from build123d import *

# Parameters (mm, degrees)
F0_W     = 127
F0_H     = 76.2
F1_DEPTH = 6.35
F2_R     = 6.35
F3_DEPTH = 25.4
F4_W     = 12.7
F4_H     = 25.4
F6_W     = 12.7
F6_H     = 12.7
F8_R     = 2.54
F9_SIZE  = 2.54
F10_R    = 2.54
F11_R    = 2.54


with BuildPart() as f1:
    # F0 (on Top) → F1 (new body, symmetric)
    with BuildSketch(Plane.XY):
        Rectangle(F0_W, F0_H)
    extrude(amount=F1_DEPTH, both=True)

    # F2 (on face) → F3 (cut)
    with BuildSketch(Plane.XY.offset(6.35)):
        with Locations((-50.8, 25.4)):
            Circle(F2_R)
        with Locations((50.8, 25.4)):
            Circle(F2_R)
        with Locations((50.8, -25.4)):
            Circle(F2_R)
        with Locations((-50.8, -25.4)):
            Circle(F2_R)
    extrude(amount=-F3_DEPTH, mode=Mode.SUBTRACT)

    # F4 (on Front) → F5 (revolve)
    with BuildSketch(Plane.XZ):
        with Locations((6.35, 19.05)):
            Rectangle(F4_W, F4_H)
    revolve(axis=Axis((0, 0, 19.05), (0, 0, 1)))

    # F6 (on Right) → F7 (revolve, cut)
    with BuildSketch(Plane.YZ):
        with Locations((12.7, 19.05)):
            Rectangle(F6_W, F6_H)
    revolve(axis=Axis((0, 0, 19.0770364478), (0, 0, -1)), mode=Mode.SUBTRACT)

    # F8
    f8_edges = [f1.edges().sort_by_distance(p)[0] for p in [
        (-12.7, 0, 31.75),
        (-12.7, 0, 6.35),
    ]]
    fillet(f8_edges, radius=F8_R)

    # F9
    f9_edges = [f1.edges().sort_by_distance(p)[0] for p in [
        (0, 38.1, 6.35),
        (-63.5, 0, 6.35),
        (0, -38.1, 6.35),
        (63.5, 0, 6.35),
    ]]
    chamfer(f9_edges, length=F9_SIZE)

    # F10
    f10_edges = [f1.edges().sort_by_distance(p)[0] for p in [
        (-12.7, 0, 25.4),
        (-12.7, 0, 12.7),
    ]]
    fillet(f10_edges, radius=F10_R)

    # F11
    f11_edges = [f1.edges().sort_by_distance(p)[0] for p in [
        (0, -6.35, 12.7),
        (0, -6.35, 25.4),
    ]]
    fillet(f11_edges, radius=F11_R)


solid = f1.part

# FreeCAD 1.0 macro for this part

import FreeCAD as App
import Part
import Sketcher

V = App.Vector
Q = App.Units.Quantity


def edges_at(feature, points):
    """Names of the edges that pass closest to the given points."""
    edges = feature.Shape.Edges
    near = lambda p: min(range(len(edges)), key=lambda i: edges[i].distToShape(Part.Vertex(*p))[0])
    return sorted({f"Edge{near(p) + 1}" for p in points})

doc = App.newDocument("Part")
params = doc.addObject("Spreadsheet::Sheet", "Params")
for row, (alias, value) in enumerate([
    ("sketch1_width", "5 in"),
    ("sketch1_height", "3 in"),
    ("pad1_length", "0.5 in"),
    ("sketch2_diameter", "0.5 in"),
    ("pocket1_length", "1 in"),
    ("sketch3_height", "1 in"),
    ("sketch3_width", "0.5 in"),
    ("revolution_angle", "360 deg"),
    ("sketch4_width", "0.5 in"),
    ("groove_angle", "360 deg"),
    ("fillet_radius", "0.1 in"),
    ("chamfer_size", "0.1 in"),
    ("fillet2_radius", "0.1 in"),
    ("fillet3_radius", "0.1 in"),
], start=1):
    params.set(f"A{row}", alias)
    params.set(f"B{row}", "=" + value)
    params.setAlias(f"B{row}", alias)

body = doc.addObject("PartDesign::Body", "Body")

# Sketch on XY plane
sketch1 = body.newObject("Sketcher::SketchObject", "Sketch")
sketch1.AttachmentSupport = (doc.getObject("XY_Plane"), [""])
sketch1.MapMode = "FlatFace"
sketch1.addGeometry(Part.LineSegment(V(-63.5, 38.1, 0), V(-63.5, -38.1, 0)), False)
sketch1.addGeometry(Part.LineSegment(V(-63.5, -38.1, 0), V(63.5, -38.1, 0)), False)
sketch1.addGeometry(Part.LineSegment(V(63.5, -38.1, 0), V(63.5, 38.1, 0)), False)
sketch1.addGeometry(Part.LineSegment(V(63.5, 38.1, 0), V(-63.5, 38.1, 0)), False)
sketch1.addConstraint(Sketcher.Constraint("Coincident", 0, 2, 1, 1))
sketch1.addConstraint(Sketcher.Constraint("Coincident", 1, 2, 2, 1))
sketch1.addConstraint(Sketcher.Constraint("Coincident", 2, 2, 3, 1))
sketch1.addConstraint(Sketcher.Constraint("Coincident", 3, 2, 0, 1))
sketch1.addConstraint(Sketcher.Constraint("Vertical", 0))
sketch1.addConstraint(Sketcher.Constraint("Horizontal", 1))
sketch1.addConstraint(Sketcher.Constraint("Vertical", 2))
sketch1.addConstraint(Sketcher.Constraint("Horizontal", 3))
sketch1.addConstraint(Sketcher.Constraint("Symmetric", 0, 2, 2, 2, -1, 1))
sketch1.addConstraint(Sketcher.Constraint("DistanceX", 1, 1, 1, 2, Q("5 in")))
sketch1.addConstraint(Sketcher.Constraint("DistanceY", 0, 2, 0, 1, Q("3 in")))
sketch1.setExpression("Constraints[9]", "Params.sketch1_width")
sketch1.setExpression("Constraints[10]", "Params.sketch1_height")
pad1 = body.newObject("PartDesign::Pad", "Pad")
pad1.Profile = sketch1
pad1.setExpression("Length", "Params.pad1_length")
pad1.Midplane = True

# Sketch on XY plane
sketch2 = body.newObject("Sketcher::SketchObject", "Sketch001")
sketch2.AttachmentSupport = (doc.getObject("XY_Plane"), [""])
sketch2.MapMode = "FlatFace"
sketch2.AttachmentOffset = App.Placement(V(0, 0, 0.25 * 25.4), App.Rotation())
sketch2.addGeometry(Part.Circle(V(-50.8, 25.4, 0), V(0, 0, 1), 6.35), False)
sketch2.addGeometry(Part.Circle(V(50.8, 25.4, 0), V(0, 0, 1), 6.35), False)
sketch2.addGeometry(Part.Circle(V(50.8, -25.4, 0), V(0, 0, 1), 6.35), False)
sketch2.addGeometry(Part.Circle(V(-50.8, -25.4, 0), V(0, 0, 1), 6.35), False)
sketch2.addConstraint(Sketcher.Constraint("Equal", 0, 1))
sketch2.addConstraint(Sketcher.Constraint("Equal", 1, 2))
sketch2.addConstraint(Sketcher.Constraint("Equal", 2, 3))
sketch2.addConstraint(Sketcher.Constraint("Symmetric", 0, 3, 2, 3, -1, 1))
sketch2.addConstraint(Sketcher.Constraint("Symmetric", 1, 3, 3, 3, -1, 1))
sketch2.addConstraint(Sketcher.Constraint("Symmetric", 0, 3, 1, 3, -2))
sketch2.addConstraint(Sketcher.Constraint("Diameter", 0, Q("0.5 in")))
sketch2.addConstraint(Sketcher.Constraint("DistanceX", 0, 3, -1, 1, Q("2 in")))
sketch2.addConstraint(Sketcher.Constraint("DistanceY", -1, 1, 0, 3, Q("1 in")))
sketch2.setExpression("Constraints[6]", "Params.sketch2_diameter")
pocket1 = body.newObject("PartDesign::Pocket", "Pocket")
pocket1.Profile = sketch2
pocket1.setExpression("Length", "Params.pocket1_length")

# Sketch on XZ plane
sketch3 = body.newObject("Sketcher::SketchObject", "Sketch002")
sketch3.AttachmentSupport = (doc.getObject("XZ_Plane"), [""])
sketch3.MapMode = "FlatFace"
sketch3.addGeometry(Part.LineSegment(V(0, 31.75, 0), V(0, 6.35, 0)), False)
sketch3.addGeometry(Part.LineSegment(V(0, 6.35, 0), V(12.7, 6.35, 0)), False)
sketch3.addGeometry(Part.LineSegment(V(12.7, 6.35, 0), V(12.7, 31.75, 0)), False)
sketch3.addGeometry(Part.LineSegment(V(12.7, 31.75, 0), V(0, 31.75, 0)), False)
sketch3.addConstraint(Sketcher.Constraint("Coincident", 0, 2, 1, 1))
sketch3.addConstraint(Sketcher.Constraint("Coincident", 1, 2, 2, 1))
sketch3.addConstraint(Sketcher.Constraint("Coincident", 2, 2, 3, 1))
sketch3.addConstraint(Sketcher.Constraint("Coincident", 3, 2, 0, 1))
sketch3.addConstraint(Sketcher.Constraint("Vertical", 0))
sketch3.addConstraint(Sketcher.Constraint("Horizontal", 1))
sketch3.addConstraint(Sketcher.Constraint("Vertical", 2))
sketch3.addConstraint(Sketcher.Constraint("Horizontal", 3))
sketch3.addConstraint(Sketcher.Constraint("PointOnObject", 0, 2, -2))
sketch3.addConstraint(Sketcher.Constraint("DistanceY", 0, 2, 0, 1, Q("1 in")))
sketch3.addConstraint(Sketcher.Constraint("DistanceX", 1, 1, 1, 2, Q("0.5 in")))
sketch3.addConstraint(Sketcher.Constraint("DistanceY", -1, 1, 0, 2, Q("0.25 in")))
sketch3.setExpression("Constraints[9]", "Params.sketch3_height")
sketch3.setExpression("Constraints[10]", "Params.sketch3_width")
revolution = body.newObject("PartDesign::Revolution", "Revolution")
revolution.Profile = sketch3
revolution.ReferenceAxis = (sketch3, ["V_Axis"])
revolution.setExpression("Angle", "Params.revolution_angle")

# Sketch on YZ plane
sketch4 = body.newObject("Sketcher::SketchObject", "Sketch003")
sketch4.AttachmentSupport = (doc.getObject("YZ_Plane"), [""])
sketch4.MapMode = "FlatFace"
sketch4.addGeometry(Part.LineSegment(V(6.35, 25.4, 0), V(6.35, 12.7, 0)), False)
sketch4.addGeometry(Part.LineSegment(V(6.35, 12.7, 0), V(19.05, 12.7, 0)), False)
sketch4.addGeometry(Part.LineSegment(V(19.05, 12.7, 0), V(19.05, 25.4, 0)), False)
sketch4.addGeometry(Part.LineSegment(V(19.05, 25.4, 0), V(6.35, 25.4, 0)), False)
sketch4.addConstraint(Sketcher.Constraint("Coincident", 0, 2, 1, 1))
sketch4.addConstraint(Sketcher.Constraint("Coincident", 1, 2, 2, 1))
sketch4.addConstraint(Sketcher.Constraint("Coincident", 2, 2, 3, 1))
sketch4.addConstraint(Sketcher.Constraint("Coincident", 3, 2, 0, 1))
sketch4.addConstraint(Sketcher.Constraint("Vertical", 0))
sketch4.addConstraint(Sketcher.Constraint("Horizontal", 1))
sketch4.addConstraint(Sketcher.Constraint("Vertical", 2))
sketch4.addConstraint(Sketcher.Constraint("Horizontal", 3))
sketch4.addConstraint(Sketcher.Constraint("Equal", 3, 0))
sketch4.addConstraint(Sketcher.Constraint("DistanceX", 1, 1, 1, 2, Q("0.5 in")))
sketch4.addConstraint(Sketcher.Constraint("DistanceY", -1, 1, 2, 2, Q("1 in")))
sketch4.addConstraint(Sketcher.Constraint("DistanceX", -1, 1, 0, 2, Q("0.25 in")))
sketch4.setExpression("Constraints[9]", "Params.sketch4_width")
groove = body.newObject("PartDesign::Groove", "Groove")
groove.Profile = sketch4
groove.ReferenceAxis = (sketch4, ["V_Axis"])
groove.setExpression("Angle", "Params.groove_angle")
doc.recompute()

fillet = body.newObject("PartDesign::Fillet", "Fillet")
fillet.Base = (groove, edges_at(groove, [(-12.7, 0, 31.75), (-12.7, 0, 6.35)]))
fillet.setExpression("Radius", "Params.fillet_radius")
doc.recompute()

chamfer = body.newObject("PartDesign::Chamfer", "Chamfer")
chamfer.Base = (fillet, edges_at(fillet, [
    (0, 38.1, 6.35),
    (-63.5, 0, 6.35),
    (0, -38.1, 6.35),
    (63.5, 0, 6.35),
]))
chamfer.setExpression("Size", "Params.chamfer_size")
doc.recompute()

fillet2 = body.newObject("PartDesign::Fillet", "Fillet001")
fillet2.Base = (chamfer, edges_at(chamfer, [(-12.7, 0, 25.4), (-12.7, 0, 12.7)]))
fillet2.setExpression("Radius", "Params.fillet2_radius")
doc.recompute()

fillet3 = body.newObject("PartDesign::Fillet", "Fillet002")
fillet3.Base = (fillet2, edges_at(fillet2, [(0, -6.35, 12.7), (0, -6.35, 25.4)]))
fillet3.setExpression("Radius", "Params.fillet3_radius")

doc.recompute()
